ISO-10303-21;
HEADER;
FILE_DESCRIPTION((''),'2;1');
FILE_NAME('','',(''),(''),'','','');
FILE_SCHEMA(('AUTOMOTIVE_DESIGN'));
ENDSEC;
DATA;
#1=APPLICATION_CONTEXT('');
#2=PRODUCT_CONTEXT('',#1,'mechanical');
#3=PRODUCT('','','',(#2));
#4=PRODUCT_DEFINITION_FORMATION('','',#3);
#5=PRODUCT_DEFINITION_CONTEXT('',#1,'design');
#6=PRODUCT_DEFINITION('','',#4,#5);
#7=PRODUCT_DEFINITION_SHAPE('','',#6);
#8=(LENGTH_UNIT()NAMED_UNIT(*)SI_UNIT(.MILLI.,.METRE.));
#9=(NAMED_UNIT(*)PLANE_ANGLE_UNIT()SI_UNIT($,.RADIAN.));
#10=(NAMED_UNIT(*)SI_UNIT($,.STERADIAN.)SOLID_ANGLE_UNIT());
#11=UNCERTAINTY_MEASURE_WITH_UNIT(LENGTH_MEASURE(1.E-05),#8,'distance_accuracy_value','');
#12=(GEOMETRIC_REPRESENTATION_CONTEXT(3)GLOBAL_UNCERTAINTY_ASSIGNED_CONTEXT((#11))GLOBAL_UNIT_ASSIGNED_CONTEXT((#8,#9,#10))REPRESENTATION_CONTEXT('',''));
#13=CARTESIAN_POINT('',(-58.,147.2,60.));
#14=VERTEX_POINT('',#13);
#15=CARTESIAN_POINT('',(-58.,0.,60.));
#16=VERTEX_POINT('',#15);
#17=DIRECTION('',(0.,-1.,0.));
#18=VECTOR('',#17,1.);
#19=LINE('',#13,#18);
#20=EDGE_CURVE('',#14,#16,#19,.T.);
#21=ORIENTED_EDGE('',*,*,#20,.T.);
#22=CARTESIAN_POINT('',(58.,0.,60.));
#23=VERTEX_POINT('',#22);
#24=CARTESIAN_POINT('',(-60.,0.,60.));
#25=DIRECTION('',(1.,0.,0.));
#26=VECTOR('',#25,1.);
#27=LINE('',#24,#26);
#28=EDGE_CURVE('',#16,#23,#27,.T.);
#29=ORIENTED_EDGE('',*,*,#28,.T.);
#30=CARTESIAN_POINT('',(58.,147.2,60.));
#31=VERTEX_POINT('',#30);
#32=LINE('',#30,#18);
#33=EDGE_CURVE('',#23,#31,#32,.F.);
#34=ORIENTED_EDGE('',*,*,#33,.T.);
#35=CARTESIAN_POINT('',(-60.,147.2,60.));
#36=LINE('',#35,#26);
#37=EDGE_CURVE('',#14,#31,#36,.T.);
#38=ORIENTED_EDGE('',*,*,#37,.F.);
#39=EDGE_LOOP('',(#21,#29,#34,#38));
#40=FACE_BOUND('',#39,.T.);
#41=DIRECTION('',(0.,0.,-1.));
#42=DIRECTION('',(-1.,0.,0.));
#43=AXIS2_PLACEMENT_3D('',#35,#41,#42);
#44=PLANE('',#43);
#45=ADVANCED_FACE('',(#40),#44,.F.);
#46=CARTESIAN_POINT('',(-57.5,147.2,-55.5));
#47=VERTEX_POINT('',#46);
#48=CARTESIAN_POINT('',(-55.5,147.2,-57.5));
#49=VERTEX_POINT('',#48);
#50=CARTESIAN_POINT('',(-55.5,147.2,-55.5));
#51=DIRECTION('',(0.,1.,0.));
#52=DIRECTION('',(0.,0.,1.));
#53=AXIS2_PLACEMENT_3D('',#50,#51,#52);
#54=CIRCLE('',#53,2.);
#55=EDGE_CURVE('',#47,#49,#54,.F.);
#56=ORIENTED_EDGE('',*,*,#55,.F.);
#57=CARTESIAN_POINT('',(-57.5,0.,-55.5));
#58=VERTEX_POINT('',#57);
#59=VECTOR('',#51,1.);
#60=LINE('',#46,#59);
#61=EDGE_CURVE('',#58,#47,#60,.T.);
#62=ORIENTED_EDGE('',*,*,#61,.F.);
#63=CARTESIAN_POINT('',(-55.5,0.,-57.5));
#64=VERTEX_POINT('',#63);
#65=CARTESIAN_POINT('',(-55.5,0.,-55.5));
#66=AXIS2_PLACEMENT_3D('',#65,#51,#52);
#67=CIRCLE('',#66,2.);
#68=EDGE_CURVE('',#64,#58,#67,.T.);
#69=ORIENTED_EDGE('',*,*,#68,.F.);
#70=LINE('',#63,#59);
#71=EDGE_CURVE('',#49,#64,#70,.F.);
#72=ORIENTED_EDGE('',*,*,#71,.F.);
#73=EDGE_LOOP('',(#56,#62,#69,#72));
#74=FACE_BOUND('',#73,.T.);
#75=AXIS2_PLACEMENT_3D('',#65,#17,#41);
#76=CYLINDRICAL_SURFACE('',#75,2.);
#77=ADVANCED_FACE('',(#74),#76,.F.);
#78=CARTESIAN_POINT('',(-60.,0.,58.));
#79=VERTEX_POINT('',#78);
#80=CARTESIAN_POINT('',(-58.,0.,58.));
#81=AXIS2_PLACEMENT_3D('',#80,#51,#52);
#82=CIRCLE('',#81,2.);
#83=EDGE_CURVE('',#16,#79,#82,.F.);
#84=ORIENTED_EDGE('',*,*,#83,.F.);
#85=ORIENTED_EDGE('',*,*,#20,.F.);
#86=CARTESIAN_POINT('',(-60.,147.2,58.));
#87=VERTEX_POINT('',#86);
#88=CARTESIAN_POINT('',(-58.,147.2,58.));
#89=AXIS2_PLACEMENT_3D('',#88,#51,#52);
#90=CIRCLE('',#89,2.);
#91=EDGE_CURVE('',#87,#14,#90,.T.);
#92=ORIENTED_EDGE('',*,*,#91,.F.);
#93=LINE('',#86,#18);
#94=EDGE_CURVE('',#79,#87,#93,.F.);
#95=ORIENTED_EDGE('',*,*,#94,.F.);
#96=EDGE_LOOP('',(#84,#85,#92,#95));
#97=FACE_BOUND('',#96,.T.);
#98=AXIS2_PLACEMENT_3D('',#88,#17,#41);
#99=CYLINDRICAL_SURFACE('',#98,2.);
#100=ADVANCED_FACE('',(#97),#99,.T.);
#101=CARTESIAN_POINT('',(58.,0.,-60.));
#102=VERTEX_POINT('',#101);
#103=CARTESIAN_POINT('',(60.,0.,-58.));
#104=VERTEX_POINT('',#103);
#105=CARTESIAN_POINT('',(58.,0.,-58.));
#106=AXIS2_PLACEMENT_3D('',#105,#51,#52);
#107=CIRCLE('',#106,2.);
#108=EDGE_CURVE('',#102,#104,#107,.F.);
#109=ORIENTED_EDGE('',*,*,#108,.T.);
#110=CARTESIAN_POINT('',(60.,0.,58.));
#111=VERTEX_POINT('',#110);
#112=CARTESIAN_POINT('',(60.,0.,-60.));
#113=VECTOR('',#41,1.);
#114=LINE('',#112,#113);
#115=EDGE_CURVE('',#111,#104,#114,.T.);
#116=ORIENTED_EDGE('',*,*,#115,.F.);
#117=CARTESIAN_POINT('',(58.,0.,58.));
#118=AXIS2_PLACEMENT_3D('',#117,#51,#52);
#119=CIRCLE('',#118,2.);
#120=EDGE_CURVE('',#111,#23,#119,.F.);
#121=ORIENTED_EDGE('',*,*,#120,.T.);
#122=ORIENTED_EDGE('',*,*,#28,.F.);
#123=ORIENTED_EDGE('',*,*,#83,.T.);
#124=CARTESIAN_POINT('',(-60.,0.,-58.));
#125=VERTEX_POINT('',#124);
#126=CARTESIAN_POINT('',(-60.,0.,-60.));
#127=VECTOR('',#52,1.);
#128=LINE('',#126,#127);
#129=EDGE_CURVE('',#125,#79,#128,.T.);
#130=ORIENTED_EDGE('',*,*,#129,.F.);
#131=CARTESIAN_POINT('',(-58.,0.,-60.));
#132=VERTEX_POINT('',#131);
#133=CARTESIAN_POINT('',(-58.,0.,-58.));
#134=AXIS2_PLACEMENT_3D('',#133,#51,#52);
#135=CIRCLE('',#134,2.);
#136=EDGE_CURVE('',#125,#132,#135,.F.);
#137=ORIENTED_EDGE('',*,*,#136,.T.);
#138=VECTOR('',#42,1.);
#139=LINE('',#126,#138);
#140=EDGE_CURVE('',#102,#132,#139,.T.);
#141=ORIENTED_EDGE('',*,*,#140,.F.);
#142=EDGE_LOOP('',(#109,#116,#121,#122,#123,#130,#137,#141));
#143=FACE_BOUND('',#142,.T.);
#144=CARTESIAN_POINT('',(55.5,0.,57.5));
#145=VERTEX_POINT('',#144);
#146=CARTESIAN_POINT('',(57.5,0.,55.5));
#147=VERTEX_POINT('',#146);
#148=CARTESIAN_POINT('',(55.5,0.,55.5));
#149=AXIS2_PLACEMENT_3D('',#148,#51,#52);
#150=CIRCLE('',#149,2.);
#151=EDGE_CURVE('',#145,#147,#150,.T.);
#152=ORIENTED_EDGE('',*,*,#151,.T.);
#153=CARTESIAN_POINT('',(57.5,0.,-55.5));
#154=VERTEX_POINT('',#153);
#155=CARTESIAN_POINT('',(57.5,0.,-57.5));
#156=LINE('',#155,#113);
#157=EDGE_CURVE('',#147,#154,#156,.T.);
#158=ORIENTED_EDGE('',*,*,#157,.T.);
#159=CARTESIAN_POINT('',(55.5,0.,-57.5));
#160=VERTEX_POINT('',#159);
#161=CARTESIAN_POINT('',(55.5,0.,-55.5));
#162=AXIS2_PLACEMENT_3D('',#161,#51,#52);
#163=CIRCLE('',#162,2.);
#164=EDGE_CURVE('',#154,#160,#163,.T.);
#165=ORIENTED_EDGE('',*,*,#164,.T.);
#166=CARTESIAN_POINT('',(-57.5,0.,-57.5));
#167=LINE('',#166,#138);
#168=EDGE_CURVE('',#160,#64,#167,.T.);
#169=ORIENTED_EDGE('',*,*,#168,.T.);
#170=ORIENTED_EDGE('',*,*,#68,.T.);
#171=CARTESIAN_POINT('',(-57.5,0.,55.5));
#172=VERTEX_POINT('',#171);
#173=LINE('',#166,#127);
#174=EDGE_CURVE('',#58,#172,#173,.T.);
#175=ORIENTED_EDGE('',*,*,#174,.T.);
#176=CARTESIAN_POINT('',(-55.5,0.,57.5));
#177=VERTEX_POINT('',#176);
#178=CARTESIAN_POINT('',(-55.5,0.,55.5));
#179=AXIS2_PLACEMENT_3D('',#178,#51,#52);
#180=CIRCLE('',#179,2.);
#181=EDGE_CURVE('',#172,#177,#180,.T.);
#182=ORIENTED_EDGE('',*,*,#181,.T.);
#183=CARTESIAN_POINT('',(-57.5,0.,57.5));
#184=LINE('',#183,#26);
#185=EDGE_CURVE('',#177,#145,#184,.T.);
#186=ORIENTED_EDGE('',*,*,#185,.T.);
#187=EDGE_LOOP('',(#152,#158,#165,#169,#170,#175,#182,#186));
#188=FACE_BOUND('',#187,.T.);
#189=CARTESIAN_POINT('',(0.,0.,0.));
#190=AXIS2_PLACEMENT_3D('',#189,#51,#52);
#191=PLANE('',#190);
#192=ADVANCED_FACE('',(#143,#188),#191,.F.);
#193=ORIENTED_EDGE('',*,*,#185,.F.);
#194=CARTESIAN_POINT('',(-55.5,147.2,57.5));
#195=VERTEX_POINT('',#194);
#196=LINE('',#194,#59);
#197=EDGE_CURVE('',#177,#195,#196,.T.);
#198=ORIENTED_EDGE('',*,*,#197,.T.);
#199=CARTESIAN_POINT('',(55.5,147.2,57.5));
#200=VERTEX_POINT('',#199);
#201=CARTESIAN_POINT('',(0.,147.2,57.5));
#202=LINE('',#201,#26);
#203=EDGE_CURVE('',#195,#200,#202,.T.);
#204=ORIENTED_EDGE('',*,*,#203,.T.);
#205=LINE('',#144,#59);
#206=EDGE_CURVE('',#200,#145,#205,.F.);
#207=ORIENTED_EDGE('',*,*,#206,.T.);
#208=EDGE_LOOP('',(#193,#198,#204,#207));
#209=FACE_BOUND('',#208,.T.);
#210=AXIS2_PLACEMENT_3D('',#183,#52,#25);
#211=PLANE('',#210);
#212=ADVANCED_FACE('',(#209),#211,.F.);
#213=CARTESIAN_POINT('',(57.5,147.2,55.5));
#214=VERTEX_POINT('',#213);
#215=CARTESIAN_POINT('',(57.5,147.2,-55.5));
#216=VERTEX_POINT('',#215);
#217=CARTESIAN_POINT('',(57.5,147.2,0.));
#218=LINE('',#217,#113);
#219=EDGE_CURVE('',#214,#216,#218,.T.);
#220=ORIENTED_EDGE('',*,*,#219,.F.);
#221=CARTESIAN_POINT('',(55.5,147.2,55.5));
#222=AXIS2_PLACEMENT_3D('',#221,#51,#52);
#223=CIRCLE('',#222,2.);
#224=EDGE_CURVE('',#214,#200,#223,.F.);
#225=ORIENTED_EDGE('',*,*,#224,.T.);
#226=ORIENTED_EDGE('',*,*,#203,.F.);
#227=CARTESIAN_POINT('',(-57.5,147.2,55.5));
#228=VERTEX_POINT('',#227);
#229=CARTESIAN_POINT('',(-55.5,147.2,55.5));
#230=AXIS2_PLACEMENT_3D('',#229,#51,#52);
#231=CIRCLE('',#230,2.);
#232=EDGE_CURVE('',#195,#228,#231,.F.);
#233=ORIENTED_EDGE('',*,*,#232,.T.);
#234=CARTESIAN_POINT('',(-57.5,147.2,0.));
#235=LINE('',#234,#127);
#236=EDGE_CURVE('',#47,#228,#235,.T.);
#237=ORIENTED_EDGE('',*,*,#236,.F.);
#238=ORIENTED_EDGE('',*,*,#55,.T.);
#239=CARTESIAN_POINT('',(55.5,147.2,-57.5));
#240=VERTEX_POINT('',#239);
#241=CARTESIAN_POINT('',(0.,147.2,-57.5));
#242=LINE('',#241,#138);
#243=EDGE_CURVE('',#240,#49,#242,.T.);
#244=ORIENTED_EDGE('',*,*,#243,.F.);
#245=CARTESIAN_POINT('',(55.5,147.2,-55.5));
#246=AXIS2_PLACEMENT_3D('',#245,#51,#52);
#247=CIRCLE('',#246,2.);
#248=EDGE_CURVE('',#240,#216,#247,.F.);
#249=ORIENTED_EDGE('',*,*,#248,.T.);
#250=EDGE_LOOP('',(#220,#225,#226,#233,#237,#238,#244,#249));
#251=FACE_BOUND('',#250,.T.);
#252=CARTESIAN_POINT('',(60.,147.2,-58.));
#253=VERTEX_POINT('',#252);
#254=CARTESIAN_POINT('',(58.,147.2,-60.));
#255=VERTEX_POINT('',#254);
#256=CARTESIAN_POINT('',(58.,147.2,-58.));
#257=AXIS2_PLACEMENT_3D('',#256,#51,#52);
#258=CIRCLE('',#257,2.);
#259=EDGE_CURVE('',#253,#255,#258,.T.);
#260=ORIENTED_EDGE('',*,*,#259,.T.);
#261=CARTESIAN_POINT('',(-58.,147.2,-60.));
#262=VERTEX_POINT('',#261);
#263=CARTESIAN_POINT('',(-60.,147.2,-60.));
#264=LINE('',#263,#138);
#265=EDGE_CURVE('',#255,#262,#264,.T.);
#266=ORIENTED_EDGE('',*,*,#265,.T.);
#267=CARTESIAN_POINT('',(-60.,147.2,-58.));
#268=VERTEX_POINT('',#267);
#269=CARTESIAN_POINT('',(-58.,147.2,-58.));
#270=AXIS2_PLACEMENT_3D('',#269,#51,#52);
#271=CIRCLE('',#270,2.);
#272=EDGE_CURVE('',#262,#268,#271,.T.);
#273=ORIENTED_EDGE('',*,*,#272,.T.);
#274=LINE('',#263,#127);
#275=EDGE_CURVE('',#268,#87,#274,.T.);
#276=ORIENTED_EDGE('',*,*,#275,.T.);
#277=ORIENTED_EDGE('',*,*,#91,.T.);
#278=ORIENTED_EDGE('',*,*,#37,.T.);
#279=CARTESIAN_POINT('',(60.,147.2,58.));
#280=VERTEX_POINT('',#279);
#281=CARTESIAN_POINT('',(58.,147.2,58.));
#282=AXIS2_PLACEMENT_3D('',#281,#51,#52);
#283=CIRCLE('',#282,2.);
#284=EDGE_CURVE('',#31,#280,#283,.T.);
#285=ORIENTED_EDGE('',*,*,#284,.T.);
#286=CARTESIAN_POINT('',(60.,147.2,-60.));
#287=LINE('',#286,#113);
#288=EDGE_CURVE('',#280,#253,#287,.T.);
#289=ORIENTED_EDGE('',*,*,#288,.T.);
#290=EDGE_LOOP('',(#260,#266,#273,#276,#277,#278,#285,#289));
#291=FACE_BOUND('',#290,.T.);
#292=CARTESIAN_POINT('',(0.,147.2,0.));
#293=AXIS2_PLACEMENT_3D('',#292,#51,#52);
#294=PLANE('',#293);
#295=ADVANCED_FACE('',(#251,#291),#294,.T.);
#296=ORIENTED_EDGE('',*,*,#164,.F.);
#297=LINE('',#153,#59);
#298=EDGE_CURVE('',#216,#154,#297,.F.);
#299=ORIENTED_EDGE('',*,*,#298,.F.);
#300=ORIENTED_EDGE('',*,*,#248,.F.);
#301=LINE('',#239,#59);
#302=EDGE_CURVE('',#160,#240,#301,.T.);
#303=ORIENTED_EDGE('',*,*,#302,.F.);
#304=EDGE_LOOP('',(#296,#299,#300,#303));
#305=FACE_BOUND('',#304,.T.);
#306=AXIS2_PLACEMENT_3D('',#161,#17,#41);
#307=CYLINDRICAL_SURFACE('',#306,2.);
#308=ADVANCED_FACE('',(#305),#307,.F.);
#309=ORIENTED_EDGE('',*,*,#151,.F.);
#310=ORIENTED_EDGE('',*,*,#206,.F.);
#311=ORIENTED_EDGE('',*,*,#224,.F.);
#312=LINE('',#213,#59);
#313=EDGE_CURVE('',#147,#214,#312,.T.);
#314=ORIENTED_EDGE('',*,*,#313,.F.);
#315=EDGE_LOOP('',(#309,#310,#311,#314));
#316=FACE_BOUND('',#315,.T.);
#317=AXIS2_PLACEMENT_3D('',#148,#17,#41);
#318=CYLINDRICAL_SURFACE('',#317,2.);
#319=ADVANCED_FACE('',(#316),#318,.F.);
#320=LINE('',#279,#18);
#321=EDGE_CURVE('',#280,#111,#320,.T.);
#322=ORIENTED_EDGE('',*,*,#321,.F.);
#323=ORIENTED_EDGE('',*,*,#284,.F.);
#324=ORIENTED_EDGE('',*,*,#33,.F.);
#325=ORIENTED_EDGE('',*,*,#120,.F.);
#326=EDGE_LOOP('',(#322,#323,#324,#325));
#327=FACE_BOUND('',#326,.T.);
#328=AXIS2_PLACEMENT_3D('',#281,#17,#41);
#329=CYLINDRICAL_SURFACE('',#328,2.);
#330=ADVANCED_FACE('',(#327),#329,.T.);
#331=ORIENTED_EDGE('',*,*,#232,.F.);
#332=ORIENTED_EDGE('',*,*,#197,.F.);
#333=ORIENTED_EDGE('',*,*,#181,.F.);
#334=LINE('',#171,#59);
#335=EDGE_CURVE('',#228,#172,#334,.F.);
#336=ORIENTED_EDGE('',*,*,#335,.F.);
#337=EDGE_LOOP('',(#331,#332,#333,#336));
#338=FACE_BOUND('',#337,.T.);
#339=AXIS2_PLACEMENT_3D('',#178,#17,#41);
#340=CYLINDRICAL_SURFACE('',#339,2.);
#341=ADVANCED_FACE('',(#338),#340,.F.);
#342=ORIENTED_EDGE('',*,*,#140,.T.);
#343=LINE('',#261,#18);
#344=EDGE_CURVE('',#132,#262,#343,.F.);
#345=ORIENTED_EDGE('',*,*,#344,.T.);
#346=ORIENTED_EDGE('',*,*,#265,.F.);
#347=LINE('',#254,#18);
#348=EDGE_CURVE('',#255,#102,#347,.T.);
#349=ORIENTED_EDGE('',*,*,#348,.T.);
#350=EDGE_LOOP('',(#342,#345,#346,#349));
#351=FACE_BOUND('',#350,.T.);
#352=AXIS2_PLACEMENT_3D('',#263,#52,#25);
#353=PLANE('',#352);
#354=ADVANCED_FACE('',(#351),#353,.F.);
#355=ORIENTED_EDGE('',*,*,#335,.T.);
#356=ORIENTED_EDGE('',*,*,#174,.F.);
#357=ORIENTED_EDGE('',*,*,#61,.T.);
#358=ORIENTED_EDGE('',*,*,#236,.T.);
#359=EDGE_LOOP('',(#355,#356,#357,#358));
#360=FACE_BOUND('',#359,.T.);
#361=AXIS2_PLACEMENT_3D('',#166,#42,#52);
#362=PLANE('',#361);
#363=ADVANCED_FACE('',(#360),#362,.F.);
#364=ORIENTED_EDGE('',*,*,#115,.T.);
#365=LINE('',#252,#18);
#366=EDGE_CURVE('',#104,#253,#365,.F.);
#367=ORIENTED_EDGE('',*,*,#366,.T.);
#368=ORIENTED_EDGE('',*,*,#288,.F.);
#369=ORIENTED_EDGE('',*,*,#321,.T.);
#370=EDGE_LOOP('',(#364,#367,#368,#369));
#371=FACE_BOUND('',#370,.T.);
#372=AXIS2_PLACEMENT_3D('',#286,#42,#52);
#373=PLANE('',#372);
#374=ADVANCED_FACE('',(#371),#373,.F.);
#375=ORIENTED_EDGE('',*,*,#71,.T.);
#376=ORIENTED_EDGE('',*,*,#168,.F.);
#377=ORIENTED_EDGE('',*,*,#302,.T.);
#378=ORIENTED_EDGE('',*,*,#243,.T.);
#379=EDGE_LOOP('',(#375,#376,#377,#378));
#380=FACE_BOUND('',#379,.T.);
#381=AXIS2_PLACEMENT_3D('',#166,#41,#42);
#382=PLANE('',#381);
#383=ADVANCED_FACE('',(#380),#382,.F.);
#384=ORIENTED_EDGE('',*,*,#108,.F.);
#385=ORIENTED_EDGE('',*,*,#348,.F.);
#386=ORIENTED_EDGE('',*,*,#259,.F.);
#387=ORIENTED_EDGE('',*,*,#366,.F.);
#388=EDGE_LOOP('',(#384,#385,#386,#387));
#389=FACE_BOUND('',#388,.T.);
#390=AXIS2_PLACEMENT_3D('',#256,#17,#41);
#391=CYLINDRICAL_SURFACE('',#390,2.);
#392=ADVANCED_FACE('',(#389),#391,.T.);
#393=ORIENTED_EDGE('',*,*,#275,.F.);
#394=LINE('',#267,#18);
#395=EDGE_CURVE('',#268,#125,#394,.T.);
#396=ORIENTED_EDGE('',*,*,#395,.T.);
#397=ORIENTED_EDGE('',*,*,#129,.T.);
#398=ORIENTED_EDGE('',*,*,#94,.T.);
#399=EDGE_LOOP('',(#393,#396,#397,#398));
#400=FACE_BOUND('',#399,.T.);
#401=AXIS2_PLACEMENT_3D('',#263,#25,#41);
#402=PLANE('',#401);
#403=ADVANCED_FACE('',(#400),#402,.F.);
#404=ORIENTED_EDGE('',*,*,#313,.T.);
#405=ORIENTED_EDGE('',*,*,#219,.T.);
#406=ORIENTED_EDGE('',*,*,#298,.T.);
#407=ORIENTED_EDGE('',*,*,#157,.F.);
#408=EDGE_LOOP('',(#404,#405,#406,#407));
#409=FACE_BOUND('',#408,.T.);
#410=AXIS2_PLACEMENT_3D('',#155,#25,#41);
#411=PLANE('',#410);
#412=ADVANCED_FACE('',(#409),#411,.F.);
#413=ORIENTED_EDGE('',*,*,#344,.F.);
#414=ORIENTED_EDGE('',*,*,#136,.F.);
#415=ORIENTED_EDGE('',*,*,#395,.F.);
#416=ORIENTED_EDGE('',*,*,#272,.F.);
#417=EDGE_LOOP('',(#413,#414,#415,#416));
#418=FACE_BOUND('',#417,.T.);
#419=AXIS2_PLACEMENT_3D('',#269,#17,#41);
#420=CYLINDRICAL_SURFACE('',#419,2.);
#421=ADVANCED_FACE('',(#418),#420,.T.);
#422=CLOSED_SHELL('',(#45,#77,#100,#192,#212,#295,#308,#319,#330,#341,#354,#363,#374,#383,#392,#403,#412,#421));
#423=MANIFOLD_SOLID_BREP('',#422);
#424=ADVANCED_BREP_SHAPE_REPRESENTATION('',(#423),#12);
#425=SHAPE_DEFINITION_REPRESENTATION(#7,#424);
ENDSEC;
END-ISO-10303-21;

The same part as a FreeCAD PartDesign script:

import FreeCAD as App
import Part
import Sketcher
Q = App.Units.Quantity


def edges_at(feature, points):
    """Names of the edges that pass closest to the given points."""
    edges = feature.Shape.Edges
    near = lambda p: min(range(len(edges)), key=lambda i: edges[i].distToShape(Part.Vertex(*p))[0])
    return sorted({f"Edge{near(p) + 1}" for p in points})


def add_polygon(sketch, points):
    """Adds a closed chain of lines whose ends are joined by coincident constraints."""
    first, n = sketch.GeometryCount, len(points)
    for a, b in zip(points, points[1:] + points[:1]):
        sketch.addGeometry(Part.LineSegment(App.Vector(*a, 0), App.Vector(*b, 0)), False)
    for i in range(n):
        sketch.addConstraint(Sketcher.Constraint("Coincident", first + i, 2, first + (i + 1) % n, 1))

doc = App.newDocument("Part")
body = doc.addObject("PartDesign::Body", "Body")

sketch1 = body.newObject("Sketcher::SketchObject", "Sketch")
sketch1.AttachmentSupport = (doc.getObject("XZ_Plane"), [""])
sketch1.MapMode = "FlatFace"
add_polygon(sketch1, [(-60, -60), (-60, 60), (60, 60), (60, -60)])
sketch1.addConstraint(Sketcher.Constraint("Vertical", 0))
sketch1.addConstraint(Sketcher.Constraint("Horizontal", 1))
sketch1.addConstraint(Sketcher.Constraint("Vertical", 2))
sketch1.addConstraint(Sketcher.Constraint("Horizontal", 3))
sketch1.addConstraint(Sketcher.Constraint("Symmetric", 0, 2, 2, 2, -1, 1))
sketch1.addConstraint(Sketcher.Constraint("Equal", 3, 0))
sketch1.addConstraint(Sketcher.Constraint("DistanceX", 1, 1, 1, 2, Q("120 mm")))
pad1 = body.newObject("PartDesign::Pad", "Pad")
pad1.Profile = sketch1
pad1.Length = 147.2
pad1.Reversed = True

sketch2 = body.newObject("Sketcher::SketchObject", "Sketch001")
sketch2.AttachmentSupport = (doc.getObject("XZ_Plane"), [""])
sketch2.MapMode = "FlatFace"
sketch2.AttachmentOffset = App.Placement(App.Vector(0, 0, -147.2), App.Rotation())
add_polygon(sketch2, [(-58, -58), (-58, 58), (58, 58), (58, -58)])
sketch2.addConstraint(Sketcher.Constraint("Vertical", 0))
sketch2.addConstraint(Sketcher.Constraint("Horizontal", 1))
sketch2.addConstraint(Sketcher.Constraint("Vertical", 2))
sketch2.addConstraint(Sketcher.Constraint("Horizontal", 3))
sketch2.addConstraint(Sketcher.Constraint("Symmetric", 0, 2, 2, 2, -1, 1))
sketch2.addConstraint(Sketcher.Constraint("Equal", 3, 0))
sketch2.addConstraint(Sketcher.Constraint("DistanceX", 1, 1, 1, 2, Q("115 mm")))
pocket1 = body.newObject("PartDesign::Pocket", "Pocket")
pocket1.Profile = sketch2
pocket1.Type = "ThroughAll"
pocket1.Midplane = True
doc.recompute()

fillet = body.newObject("PartDesign::Fillet", "Fillet")
fillet.Base = (pocket1, edges_at(pocket1, [
    (60, 73.6, 60),
    (-60, 73.6, 60),
    (-60, 73.6, -60),
    (60, 73.6, -60),
]))
fillet.Radius = 2
doc.recompute()

fillet2 = body.newObject("PartDesign::Fillet", "Fillet001")
fillet2.Base = (fillet, edges_at(fillet, [
    (57.5, 73.6, -57.5),
    (57.5, 73.6, 57.5),
    (-57.5, 73.6, 57.5),
    (-57.5, 73.6, -57.5),
]))
fillet2.Radius = 2

doc.recompute()
